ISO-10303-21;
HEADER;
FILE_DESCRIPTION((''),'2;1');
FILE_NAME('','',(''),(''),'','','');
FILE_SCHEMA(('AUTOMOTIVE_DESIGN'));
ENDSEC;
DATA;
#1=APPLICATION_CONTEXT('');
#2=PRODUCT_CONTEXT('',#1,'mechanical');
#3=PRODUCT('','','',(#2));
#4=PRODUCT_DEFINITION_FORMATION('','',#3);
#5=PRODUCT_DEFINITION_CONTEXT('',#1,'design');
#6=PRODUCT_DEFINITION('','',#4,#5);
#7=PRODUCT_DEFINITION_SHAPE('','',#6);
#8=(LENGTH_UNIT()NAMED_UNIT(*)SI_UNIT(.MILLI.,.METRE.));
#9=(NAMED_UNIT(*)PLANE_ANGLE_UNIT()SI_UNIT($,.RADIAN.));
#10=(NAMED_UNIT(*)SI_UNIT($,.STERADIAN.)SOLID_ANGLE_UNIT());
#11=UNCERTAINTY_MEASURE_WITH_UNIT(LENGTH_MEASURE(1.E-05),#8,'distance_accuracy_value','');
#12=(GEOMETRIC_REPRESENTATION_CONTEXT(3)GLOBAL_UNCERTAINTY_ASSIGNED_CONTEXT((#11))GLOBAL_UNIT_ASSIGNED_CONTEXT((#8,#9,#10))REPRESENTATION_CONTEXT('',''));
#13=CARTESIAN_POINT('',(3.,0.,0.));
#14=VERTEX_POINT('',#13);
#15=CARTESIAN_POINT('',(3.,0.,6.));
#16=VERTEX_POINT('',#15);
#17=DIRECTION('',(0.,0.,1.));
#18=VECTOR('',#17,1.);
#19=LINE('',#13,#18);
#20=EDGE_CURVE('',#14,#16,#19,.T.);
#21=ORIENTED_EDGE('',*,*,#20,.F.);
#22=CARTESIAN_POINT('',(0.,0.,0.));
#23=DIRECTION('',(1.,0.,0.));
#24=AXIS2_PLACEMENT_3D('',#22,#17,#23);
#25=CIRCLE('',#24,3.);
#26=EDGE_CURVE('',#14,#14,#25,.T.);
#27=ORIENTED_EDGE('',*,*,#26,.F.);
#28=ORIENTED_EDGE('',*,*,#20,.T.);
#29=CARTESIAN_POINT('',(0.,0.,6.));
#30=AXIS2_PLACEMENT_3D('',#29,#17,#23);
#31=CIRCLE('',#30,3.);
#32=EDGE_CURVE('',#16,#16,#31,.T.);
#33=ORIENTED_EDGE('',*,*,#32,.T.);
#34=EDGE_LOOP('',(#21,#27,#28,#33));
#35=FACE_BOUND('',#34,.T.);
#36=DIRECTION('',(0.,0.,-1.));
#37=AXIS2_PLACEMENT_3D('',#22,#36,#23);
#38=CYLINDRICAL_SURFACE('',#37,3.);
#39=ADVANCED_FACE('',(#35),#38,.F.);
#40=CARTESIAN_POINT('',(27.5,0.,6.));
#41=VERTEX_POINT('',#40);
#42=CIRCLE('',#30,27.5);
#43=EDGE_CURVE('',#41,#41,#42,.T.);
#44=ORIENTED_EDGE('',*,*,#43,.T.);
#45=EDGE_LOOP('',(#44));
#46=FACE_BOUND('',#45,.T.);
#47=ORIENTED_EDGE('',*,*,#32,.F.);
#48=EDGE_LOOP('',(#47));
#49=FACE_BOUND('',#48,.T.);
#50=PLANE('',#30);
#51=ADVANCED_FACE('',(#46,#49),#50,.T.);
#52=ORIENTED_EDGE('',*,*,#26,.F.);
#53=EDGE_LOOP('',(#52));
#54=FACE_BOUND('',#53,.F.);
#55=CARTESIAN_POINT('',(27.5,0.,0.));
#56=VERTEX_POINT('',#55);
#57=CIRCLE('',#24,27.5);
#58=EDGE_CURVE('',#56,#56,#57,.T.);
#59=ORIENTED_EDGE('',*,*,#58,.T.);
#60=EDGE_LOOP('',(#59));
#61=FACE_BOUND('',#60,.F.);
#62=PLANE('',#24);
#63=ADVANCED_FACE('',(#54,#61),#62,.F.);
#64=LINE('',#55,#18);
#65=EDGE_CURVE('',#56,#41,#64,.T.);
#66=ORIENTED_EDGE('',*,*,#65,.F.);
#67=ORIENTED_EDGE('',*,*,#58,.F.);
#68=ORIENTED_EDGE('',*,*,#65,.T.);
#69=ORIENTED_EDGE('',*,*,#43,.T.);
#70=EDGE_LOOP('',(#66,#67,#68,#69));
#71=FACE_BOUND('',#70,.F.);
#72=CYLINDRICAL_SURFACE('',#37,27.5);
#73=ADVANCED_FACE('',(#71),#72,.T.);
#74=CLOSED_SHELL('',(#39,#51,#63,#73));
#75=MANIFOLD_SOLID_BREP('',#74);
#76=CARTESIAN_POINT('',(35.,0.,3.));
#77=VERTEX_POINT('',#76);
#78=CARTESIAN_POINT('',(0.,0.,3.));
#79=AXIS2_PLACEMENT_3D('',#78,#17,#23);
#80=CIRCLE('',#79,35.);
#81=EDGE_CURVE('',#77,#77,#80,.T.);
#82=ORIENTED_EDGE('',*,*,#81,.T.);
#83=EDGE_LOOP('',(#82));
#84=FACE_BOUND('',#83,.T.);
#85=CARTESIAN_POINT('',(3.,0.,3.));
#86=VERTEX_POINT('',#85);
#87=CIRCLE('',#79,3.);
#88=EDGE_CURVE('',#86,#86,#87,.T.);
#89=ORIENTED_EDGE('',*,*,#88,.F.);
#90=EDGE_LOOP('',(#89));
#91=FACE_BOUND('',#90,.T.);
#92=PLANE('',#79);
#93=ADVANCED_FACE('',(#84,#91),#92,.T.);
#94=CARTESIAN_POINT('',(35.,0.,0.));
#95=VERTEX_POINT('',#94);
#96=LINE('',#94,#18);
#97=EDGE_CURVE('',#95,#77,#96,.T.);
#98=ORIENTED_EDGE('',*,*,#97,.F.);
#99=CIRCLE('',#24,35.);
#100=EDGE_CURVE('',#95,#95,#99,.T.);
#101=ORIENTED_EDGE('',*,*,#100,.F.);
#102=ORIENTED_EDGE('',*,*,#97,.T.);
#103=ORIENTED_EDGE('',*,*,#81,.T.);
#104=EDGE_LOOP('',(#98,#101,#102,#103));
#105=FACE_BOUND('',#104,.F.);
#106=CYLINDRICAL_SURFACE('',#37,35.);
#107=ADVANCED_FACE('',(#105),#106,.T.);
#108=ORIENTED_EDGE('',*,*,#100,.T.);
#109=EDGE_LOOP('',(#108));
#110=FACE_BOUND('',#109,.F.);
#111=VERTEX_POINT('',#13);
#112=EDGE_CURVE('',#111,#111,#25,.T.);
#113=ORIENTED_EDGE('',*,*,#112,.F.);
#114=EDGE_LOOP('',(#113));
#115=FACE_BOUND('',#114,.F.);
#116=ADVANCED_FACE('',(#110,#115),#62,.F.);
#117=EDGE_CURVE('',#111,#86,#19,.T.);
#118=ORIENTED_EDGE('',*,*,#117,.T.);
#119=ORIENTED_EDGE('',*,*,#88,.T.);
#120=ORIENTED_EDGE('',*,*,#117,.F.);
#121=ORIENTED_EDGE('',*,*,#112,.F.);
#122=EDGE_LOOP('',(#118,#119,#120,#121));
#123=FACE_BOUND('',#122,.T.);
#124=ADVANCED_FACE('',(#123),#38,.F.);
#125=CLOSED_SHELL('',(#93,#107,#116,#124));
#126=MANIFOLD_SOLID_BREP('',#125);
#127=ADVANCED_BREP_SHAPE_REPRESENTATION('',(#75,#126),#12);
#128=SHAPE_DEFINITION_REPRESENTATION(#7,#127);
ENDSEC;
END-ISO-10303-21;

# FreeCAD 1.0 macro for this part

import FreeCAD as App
import Part
import Sketcher

doc = App.newDocument("Part")
body = doc.addObject("PartDesign::Body", "Body")

sketch1 = body.newObject("Sketcher::SketchObject", "Sketch")
sketch1.AttachmentSupport = (doc.getObject("XY_Plane"), [""])
sketch1.MapMode = "FlatFace"
sketch1.addGeometry(Part.Circle(App.Vector(0, 0, 0), App.Vector(0, 0, 1), 35), False)
sketch1.addGeometry(Part.Circle(App.Vector(0, 0, 0), App.Vector(0, 0, 1), 3), False)
sketch1.addConstraint(Sketcher.Constraint("Coincident", 0, 3, -1, 1))
sketch1.addConstraint(Sketcher.Constraint("Coincident", 1, 3, -1, 1))
sketch1.addConstraint(Sketcher.Constraint("Diameter", 0, 70.0))
sketch1.addConstraint(Sketcher.Constraint("Diameter", 1, 6.0))
pad1 = body.newObject("PartDesign::Pad", "Pad")
pad1.Profile = sketch1
pad1.Length = 3
body2 = doc.addObject("PartDesign::Body", "Body001")

sketch2 = body2.newObject("Sketcher::SketchObject", "Sketch001")
sketch2.AttachmentSupport = (doc.getObject("XY_Plane001"), [""])
sketch2.MapMode = "FlatFace"
sketch2.addGeometry(Part.Circle(App.Vector(0, 0, 0), App.Vector(0, 0, 1), 27.5), False)
sketch2.addGeometry(Part.Circle(App.Vector(0, 0, 0), App.Vector(0, 0, 1), 3), False)
sketch2.addConstraint(Sketcher.Constraint("Coincident", 0, 3, -1, 1))
sketch2.addConstraint(Sketcher.Constraint("Coincident", 1, 3, -1, 1))
sketch2.addConstraint(Sketcher.Constraint("Diameter", 0, 55.0))
sketch2.addConstraint(Sketcher.Constraint("Diameter", 1, 6.0))
pad2 = body2.newObject("PartDesign::Pad", "Pad001")
pad2.Profile = sketch2
pad2.Length = 6

doc.recompute()
